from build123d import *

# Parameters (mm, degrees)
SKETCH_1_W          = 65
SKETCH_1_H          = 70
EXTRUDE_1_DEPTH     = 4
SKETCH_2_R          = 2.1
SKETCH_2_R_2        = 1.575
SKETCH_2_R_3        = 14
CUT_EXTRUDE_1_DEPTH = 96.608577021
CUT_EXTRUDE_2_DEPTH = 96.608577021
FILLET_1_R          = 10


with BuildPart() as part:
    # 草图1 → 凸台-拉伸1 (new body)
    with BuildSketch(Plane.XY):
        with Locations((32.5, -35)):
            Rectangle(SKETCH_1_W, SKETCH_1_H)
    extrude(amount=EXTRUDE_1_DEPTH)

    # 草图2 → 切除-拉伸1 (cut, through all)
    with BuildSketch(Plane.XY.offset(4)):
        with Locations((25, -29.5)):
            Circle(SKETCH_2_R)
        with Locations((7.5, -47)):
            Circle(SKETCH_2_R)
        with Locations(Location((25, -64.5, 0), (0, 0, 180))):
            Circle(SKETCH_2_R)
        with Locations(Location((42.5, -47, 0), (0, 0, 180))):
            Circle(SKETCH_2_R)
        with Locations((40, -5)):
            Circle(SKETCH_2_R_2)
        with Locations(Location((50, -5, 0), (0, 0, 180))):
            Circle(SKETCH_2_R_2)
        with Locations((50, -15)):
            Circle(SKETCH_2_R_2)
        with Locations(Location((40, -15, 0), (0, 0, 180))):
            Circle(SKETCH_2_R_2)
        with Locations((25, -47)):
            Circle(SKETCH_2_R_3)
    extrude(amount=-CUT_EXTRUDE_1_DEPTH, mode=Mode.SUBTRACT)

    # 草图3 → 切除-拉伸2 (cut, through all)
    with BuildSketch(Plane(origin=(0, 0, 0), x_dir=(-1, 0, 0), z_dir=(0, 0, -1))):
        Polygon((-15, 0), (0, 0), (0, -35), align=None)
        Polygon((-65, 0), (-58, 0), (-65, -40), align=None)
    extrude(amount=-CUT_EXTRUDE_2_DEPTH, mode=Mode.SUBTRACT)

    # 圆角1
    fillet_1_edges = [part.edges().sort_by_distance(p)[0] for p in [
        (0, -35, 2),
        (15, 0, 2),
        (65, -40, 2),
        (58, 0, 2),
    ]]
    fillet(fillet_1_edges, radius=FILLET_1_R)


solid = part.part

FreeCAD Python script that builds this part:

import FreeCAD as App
import Part
import Sketcher
from FreeCAD import Vector
Q = App.Units.Quantity


def edges_at(feature, points):
    """Names of the edges that pass closest to the given points."""
    edges = feature.Shape.Edges
    near = lambda p: min(range(len(edges)), key=lambda i: edges[i].distToShape(Part.Vertex(*p))[0])
    return sorted({f"Edge{near(p) + 1}" for p in points})


def add_polygon(sketch, points):
    """Adds a closed chain of lines whose ends are joined by coincident constraints."""
    first, n = sketch.GeometryCount, len(points)
    for a, b in zip(points, points[1:] + points[:1]):
        sketch.addGeometry(Part.LineSegment(App.Vector(*a, 0), App.Vector(*b, 0)), False)
    for i in range(n):
        sketch.addConstraint(Sketcher.Constraint("Coincident", first + i, 2, first + (i + 1) % n, 1))

doc = App.newDocument("Part")
body = doc.addObject("PartDesign::Body", "Body")

sketch1 = doc.addObject("Sketcher::SketchObject", "Sketch")
body.addObject(sketch1)
sketch1.AttachmentSupport = (doc.XY_Plane, [""])
sketch1.MapMode = "FlatFace"
add_polygon(sketch1, [(0, 0), (0, -70), (65, -70), (65, 0)])
sketch1.addConstraint([
    Sketcher.Constraint("Vertical", 0),
    Sketcher.Constraint("Horizontal", 1),
    Sketcher.Constraint("Vertical", 2),
    Sketcher.Constraint("Horizontal", 3),
    Sketcher.Constraint("Coincident", 3, 2, -1, 1),
    Sketcher.Constraint("DistanceX", 1, 1, 1, 2, Q("65 mm")),
    Sketcher.Constraint("DistanceY", 0, 2, 0, 1, Q("70 mm")),
])
pad1 = doc.addObject("PartDesign::Pad", "Pad")
body.addObject(pad1)
pad1.Profile = sketch1
pad1.Length = 4

sketch2 = doc.addObject("Sketcher::SketchObject", "Sketch001")
body.addObject(sketch2)
sketch2.AttachmentSupport = (doc.XY_Plane, [""])
sketch2.MapMode = "FlatFace"
sketch2.AttachmentOffset = App.Placement(Vector(0, 0, 4), App.Rotation())
sketch2.addGeometry([
    Part.Circle(Vector(25, -29.5, 0), Vector(0, 0, 1), 2.1),
    Part.Circle(Vector(7.5, -47, 0), Vector(0, 0, 1), 2.1),
    Part.Circle(Vector(25, -64.5, 0), Vector(0, 0, 1), 2.1),
    Part.Circle(Vector(42.5, -47, 0), Vector(0, 0, 1), 2.1),
    Part.Circle(Vector(40, -5, 0), Vector(0, 0, 1), 1.575),
    Part.Circle(Vector(50, -5, 0), Vector(0, 0, 1), 1.575),
    Part.Circle(Vector(50, -15, 0), Vector(0, 0, 1), 1.575),
    Part.Circle(Vector(40, -15, 0), Vector(0, 0, 1), 1.575),
    Part.Circle(Vector(25, -47, 0), Vector(0, 0, 1), 14),
], False)
sketch2.addConstraint([
    Sketcher.Constraint("Equal", 0, 1),
    Sketcher.Constraint("Equal", 1, 2),
    Sketcher.Constraint("Equal", 2, 3),
    Sketcher.Constraint("Equal", 4, 5),
    Sketcher.Constraint("Equal", 5, 6),
    Sketcher.Constraint("Equal", 6, 7),
    Sketcher.Constraint("Horizontal", 1, 3, 3, 3),
    Sketcher.Constraint("Horizontal", 4, 3, 5, 3),
    Sketcher.Constraint("Horizontal", 6, 3, 7, 3),
    Sketcher.Constraint("Horizontal", 3, 3, 8, 3),
    Sketcher.Constraint("Vertical", 0, 3, 2, 3),
    Sketcher.Constraint("Vertical", 5, 3, 6, 3),
    Sketcher.Constraint("Vertical", 4, 3, 7, 3),
    Sketcher.Constraint("Vertical", 2, 3, 8, 3),
    Sketcher.Constraint("Diameter", 8, Q("28 mm")),
    Sketcher.Constraint("Diameter", 0, Q("4.2 mm")),
    Sketcher.Constraint("Diameter", 4, Q("3.15 mm")),
    Sketcher.Constraint("DistanceX", -1, 1, 0, 3, Q("25 mm")),
    Sketcher.Constraint("DistanceY", 1, 3, -1, 1, Q("47 mm")),
    Sketcher.Constraint("DistanceX", -1, 1, 4, 3, Q("40 mm")),
    Sketcher.Constraint("DistanceY", 4, 3, -1, 1, Q("5 mm")),
    Sketcher.Constraint("DistanceX", -1, 1, 5, 3, Q("50 mm")),
    Sketcher.Constraint("DistanceY", 6, 3, -1, 1, Q("15 mm")),
    Sketcher.Constraint("DistanceY", 2, 3, 0, 3, Q("35 mm")),
    Sketcher.Constraint("DistanceX", 1, 3, 3, 3, Q("35 mm")),
    Sketcher.Constraint("DistanceY", 0, 3, -1, 1, Q("29.5 mm")),
    Sketcher.Constraint("DistanceX", -1, 1, 1, 3, Q("7.5 mm")),
])
pocket1 = doc.addObject("PartDesign::Pocket", "Pocket")
body.addObject(pocket1)
pocket1.Profile = sketch2
pocket1.Type = "ThroughAll"

sketch3 = doc.addObject("Sketcher::SketchObject", "Sketch002")
body.addObject(sketch3)
sketch3.AttachmentSupport = (doc.XY_Plane, [""])
sketch3.MapMode = "FlatFace"
add_polygon(sketch3, [(0, 0), (15, 0), (0, -35)])
add_polygon(sketch3, [(58, 0), (65, 0), (65, -40)])
sketch3.addConstraint([
    Sketcher.Constraint("Horizontal", 0),
    Sketcher.Constraint("Vertical", 2),
    Sketcher.Constraint("Horizontal", 3),
    Sketcher.Constraint("Vertical", 4),
    Sketcher.Constraint("Coincident", 2, 2, -1, 1),
    Sketcher.Constraint("PointOnObject", 3, 2, -1),
    Sketcher.Constraint("DistanceX", 0, 1, 0, 2, Q("15 mm")),
    Sketcher.Constraint("DistanceX", 3, 1, 3, 2, Q("7 mm")),
    Sketcher.Constraint("DistanceY", 2, 1, 2, 2, Q("35 mm")),
    Sketcher.Constraint("DistanceY", 4, 2, 4, 1, Q("40 mm")),
    Sketcher.Constraint("DistanceX", -1, 1, 3, 2, Q("65 mm")),
])
pocket2 = doc.addObject("PartDesign::Pocket", "Pocket001")
body.addObject(pocket2)
pocket2.Profile = sketch3
pocket2.Type = "ThroughAll"
pocket2.Reversed = True
doc.recompute()

fillet = doc.addObject("PartDesign::Fillet", "Fillet")
body.addObject(fillet)
fillet.Base = (pocket2, edges_at(pocket2, [
    (0, -35, 2),
    (15, 0, 2),
    (65, -40, 2),
    (58, 0, 2),
]))
fillet.Radius = 10

doc.recompute()
